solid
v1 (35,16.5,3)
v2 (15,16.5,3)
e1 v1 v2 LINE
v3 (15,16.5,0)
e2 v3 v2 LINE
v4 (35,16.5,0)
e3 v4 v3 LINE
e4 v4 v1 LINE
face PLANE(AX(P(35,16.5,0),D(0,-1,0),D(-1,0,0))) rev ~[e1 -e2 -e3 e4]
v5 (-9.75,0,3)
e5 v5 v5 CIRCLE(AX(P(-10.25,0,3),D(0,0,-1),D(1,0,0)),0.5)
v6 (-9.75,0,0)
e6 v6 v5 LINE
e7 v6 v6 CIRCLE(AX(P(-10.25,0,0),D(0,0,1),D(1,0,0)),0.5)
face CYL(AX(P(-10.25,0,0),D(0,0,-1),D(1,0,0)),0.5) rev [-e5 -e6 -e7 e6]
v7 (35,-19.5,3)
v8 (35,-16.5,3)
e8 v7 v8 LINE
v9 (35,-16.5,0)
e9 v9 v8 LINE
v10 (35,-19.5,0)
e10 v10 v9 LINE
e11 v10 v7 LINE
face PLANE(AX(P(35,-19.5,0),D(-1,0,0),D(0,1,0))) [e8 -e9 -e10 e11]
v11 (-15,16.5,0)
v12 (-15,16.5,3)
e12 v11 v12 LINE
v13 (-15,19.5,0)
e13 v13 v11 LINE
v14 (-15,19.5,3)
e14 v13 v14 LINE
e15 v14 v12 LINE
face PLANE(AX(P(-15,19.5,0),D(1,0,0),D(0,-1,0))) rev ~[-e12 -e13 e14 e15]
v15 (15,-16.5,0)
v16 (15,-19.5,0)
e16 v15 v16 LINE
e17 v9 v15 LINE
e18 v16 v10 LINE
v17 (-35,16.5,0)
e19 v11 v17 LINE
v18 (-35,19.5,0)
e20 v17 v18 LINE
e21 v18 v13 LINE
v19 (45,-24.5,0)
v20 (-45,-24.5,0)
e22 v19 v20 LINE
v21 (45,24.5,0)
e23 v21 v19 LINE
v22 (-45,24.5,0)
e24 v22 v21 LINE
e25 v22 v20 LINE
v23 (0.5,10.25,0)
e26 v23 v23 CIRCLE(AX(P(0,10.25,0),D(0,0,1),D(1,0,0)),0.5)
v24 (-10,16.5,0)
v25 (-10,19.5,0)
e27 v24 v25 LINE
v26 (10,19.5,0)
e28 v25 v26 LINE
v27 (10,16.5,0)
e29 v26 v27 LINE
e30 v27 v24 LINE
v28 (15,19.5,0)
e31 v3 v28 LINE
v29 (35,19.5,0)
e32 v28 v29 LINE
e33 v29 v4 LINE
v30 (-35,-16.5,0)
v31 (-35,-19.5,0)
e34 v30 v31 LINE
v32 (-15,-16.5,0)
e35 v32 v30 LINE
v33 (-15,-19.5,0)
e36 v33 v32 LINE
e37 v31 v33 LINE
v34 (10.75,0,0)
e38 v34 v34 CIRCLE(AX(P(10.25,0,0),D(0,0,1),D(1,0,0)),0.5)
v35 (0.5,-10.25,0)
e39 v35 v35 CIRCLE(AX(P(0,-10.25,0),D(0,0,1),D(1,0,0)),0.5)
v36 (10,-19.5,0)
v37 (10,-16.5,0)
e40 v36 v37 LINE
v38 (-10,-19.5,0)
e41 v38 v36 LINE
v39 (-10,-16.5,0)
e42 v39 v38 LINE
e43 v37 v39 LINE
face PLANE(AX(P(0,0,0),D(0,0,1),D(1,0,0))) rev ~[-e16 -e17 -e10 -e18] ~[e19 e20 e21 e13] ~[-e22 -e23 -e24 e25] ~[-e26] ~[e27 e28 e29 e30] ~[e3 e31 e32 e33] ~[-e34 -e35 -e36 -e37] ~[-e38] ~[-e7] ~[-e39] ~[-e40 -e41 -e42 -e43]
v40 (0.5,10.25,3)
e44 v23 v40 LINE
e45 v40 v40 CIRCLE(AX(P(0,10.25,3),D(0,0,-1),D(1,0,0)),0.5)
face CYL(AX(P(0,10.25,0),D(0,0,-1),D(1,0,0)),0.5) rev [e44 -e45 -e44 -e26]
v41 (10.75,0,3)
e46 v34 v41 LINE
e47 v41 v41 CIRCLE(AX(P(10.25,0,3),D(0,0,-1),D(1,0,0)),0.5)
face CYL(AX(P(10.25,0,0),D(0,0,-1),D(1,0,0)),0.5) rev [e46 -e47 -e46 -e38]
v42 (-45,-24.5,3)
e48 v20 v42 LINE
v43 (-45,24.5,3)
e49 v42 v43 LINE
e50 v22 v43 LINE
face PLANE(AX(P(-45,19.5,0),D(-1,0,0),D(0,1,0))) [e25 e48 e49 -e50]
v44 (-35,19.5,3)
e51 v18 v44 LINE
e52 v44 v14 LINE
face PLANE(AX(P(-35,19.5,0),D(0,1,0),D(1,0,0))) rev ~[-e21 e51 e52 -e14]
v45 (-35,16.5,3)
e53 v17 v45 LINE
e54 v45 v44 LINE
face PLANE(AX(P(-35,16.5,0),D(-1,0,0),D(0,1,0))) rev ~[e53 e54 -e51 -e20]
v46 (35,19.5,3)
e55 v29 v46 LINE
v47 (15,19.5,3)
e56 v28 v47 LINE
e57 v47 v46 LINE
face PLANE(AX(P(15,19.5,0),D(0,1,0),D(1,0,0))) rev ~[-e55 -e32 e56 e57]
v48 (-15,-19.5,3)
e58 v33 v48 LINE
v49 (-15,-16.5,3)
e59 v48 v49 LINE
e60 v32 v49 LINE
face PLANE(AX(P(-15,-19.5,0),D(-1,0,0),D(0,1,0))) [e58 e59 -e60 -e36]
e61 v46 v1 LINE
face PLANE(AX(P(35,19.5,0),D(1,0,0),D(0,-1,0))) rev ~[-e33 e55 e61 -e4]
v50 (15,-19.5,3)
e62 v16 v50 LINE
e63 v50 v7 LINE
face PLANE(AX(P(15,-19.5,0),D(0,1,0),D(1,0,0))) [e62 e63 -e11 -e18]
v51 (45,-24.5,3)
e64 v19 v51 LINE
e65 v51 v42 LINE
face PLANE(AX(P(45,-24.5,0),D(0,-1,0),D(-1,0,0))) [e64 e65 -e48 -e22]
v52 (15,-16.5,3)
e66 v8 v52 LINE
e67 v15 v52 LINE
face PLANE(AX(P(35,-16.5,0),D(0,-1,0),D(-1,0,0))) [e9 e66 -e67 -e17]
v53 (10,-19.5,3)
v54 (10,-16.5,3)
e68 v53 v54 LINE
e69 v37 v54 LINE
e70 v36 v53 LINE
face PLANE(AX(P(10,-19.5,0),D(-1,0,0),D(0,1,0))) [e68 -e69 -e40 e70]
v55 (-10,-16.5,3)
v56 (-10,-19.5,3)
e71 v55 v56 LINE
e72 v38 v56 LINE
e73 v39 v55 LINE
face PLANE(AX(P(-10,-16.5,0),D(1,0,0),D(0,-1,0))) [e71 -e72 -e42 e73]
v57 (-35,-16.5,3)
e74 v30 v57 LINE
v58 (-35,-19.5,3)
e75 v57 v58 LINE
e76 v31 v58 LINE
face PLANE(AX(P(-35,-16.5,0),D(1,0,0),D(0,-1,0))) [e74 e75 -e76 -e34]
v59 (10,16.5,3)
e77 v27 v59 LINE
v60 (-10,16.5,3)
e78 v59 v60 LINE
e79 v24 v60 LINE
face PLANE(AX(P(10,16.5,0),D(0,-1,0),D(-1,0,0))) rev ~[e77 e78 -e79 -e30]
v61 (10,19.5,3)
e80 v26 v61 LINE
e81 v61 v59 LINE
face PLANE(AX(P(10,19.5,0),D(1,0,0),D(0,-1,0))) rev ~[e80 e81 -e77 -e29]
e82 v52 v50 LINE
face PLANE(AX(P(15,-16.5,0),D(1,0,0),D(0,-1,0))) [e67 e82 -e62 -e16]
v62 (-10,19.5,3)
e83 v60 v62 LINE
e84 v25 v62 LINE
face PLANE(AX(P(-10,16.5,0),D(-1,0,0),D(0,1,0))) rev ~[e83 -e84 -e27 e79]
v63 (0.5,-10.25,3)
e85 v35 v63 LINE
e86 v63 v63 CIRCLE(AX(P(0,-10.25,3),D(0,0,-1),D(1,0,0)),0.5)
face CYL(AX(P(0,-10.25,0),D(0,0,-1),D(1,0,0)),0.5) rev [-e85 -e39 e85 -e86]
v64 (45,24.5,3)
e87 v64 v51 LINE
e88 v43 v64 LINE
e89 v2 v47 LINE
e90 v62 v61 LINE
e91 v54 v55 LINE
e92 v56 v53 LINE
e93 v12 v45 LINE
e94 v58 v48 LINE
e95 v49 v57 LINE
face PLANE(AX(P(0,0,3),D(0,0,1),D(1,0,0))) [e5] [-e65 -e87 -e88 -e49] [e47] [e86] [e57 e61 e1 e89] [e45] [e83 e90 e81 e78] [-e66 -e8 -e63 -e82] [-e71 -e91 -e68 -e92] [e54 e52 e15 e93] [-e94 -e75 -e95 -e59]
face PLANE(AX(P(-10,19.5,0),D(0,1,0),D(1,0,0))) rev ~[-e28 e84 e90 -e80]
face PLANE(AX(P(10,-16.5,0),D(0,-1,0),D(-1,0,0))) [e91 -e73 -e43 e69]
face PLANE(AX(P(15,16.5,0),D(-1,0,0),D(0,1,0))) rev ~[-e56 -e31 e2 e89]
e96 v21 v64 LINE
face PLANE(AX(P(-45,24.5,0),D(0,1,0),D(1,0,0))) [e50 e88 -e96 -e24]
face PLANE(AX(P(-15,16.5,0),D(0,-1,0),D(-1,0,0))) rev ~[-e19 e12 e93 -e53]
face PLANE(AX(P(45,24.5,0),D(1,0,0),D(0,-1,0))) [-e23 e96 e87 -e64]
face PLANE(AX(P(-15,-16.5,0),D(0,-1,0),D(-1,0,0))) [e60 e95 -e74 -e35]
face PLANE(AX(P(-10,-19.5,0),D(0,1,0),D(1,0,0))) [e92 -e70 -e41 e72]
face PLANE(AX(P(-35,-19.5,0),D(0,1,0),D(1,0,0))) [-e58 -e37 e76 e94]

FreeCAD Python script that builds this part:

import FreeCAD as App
import Part
import Sketcher
Q = App.Units.Quantity


def add_polygon(sketch, points):
    """Adds a closed chain of lines whose ends are joined by coincident constraints."""
    first, n = sketch.GeometryCount, len(points)
    for a, b in zip(points, points[1:] + points[:1]):
        sketch.addGeometry(Part.LineSegment(App.Vector(*a, 0), App.Vector(*b, 0)), False)
    for i in range(n):
        sketch.addConstraint(Sketcher.Constraint("Coincident", first + i, 2, first + (i + 1) % n, 1))

doc = App.newDocument("Part")
params = doc.addObject("Spreadsheet::Sheet", "Params")
for row, (alias, value) in enumerate([
    ("sketch1_diameter", "1 mm"),
    ("sketch1_width", "20 mm"),
    ("sketch1_height", "49 mm"),
    ("sketch1_height2", "3 mm"),
    ("pad1_length", "3 mm"),
], start=1):
    params.set(f"A{row}", alias)
    params.set(f"B{row}", "=" + value)
    params.setAlias(f"B{row}", alias)

body = doc.addObject("PartDesign::Body", "Body")

sketch1 = body.newObject("Sketcher::SketchObject", "Sketch")
sketch1.AttachmentSupport = (doc.getObject("XY_Plane"), [""])
sketch1.MapMode = "FlatFace"
add_polygon(sketch1, [(45, 24.5), (-45, 24.5), (-45, -24.5), (45, -24.5)])
add_polygon(sketch1, [(-15, -19.5), (-35, -19.5), (-35, -16.5), (-15, -16.5)])
add_polygon(sketch1, [(10, -19.5), (-10, -19.5), (-10, -16.5), (10, -16.5)])
add_polygon(sketch1, [(35, -19.5), (15, -19.5), (15, -16.5), (35, -16.5)])
sketch1.addGeometry(Part.Circle(App.Vector(0, 10.25, 0), App.Vector(0, 0, 1), 0.5), False)
sketch1.addGeometry(Part.Circle(App.Vector(-10.25, 0, 0), App.Vector(0, 0, 1), 0.5), False)
sketch1.addGeometry(Part.Circle(App.Vector(0, -10.25, 0), App.Vector(0, 0, 1), 0.5), False)
sketch1.addGeometry(Part.Circle(App.Vector(10.25, 0, 0), App.Vector(0, 0, 1), 0.5), False)
add_polygon(sketch1, [(-35, 16.5), (-35, 19.5), (-15, 19.5), (-15, 16.5)])
add_polygon(sketch1, [(-10, 16.5), (-10, 19.5), (10, 19.5), (10, 16.5)])
add_polygon(sketch1, [(15, 16.5), (15, 19.5), (35, 19.5), (35, 16.5)])
sketch1.addConstraint([
    Sketcher.Constraint("Horizontal", 0),
    Sketcher.Constraint("Vertical", 1),
    Sketcher.Constraint("Horizontal", 2),
    Sketcher.Constraint("Vertical", 3),
    Sketcher.Constraint("Horizontal", 4),
    Sketcher.Constraint("Vertical", 5),
    Sketcher.Constraint("Horizontal", 6),
    Sketcher.Constraint("Vertical", 7),
    Sketcher.Constraint("Horizontal", 8),
    Sketcher.Constraint("Vertical", 9),
    Sketcher.Constraint("Horizontal", 10),
    Sketcher.Constraint("Vertical", 11),
    Sketcher.Constraint("Horizontal", 12),
    Sketcher.Constraint("Vertical", 13),
    Sketcher.Constraint("Horizontal", 14),
    Sketcher.Constraint("Vertical", 15),
    Sketcher.Constraint("Vertical", 20),
    Sketcher.Constraint("Horizontal", 21),
    Sketcher.Constraint("Vertical", 22),
    Sketcher.Constraint("Horizontal", 23),
    Sketcher.Constraint("Vertical", 24),
    Sketcher.Constraint("Horizontal", 25),
    Sketcher.Constraint("Vertical", 26),
    Sketcher.Constraint("Horizontal", 27),
    Sketcher.Constraint("Vertical", 28),
    Sketcher.Constraint("Horizontal", 29),
    Sketcher.Constraint("Vertical", 30),
    Sketcher.Constraint("Horizontal", 31),
    Sketcher.Constraint("Equal", 16, 17),
    Sketcher.Constraint("Equal", 17, 18),
    Sketcher.Constraint("Equal", 18, 19),
    Sketcher.Constraint("Symmetric", 16, 3, 18, 3, -1, 1),
    Sketcher.Constraint("Symmetric", 17, 3, 19, 3, -1, 1),
    Sketcher.Constraint("Symmetric", 0, 2, 2, 2, -1, 1),
    Sketcher.Constraint("Symmetric", 15, 2, 20, 2, -1, 1),
    Sketcher.Constraint("Symmetric", 13, 2, 22, 2, -1, 1),
    Sketcher.Constraint("Symmetric", 11, 2, 24, 2, -1, 1),
    Sketcher.Constraint("Symmetric", 9, 2, 26, 2, -1, 1),
    Sketcher.Constraint("Symmetric", 7, 2, 28, 2, -1, 1),
    Sketcher.Constraint("Symmetric", 5, 2, 30, 2, -1, 1),
    Sketcher.Constraint("Symmetric", 7, 2, 12, 2, -2),
    Sketcher.Constraint("Symmetric", 5, 2, 14, 2, -2),
    Sketcher.Constraint("PointOnObject", 16, 3, -2),
    Sketcher.Constraint("PointOnObject", 17, 3, -1),
    Sketcher.Constraint("Horizontal", 7, 2, 8, 2),
    Sketcher.Constraint("Horizontal", 6, 2, 9, 2),
    Sketcher.Constraint("Vertical", 9, 2, 24, 2),
    Sketcher.Constraint("Equal", 6, 8),
    Sketcher.Constraint("Diameter", 16, Q("1 mm")),
    Sketcher.Constraint("DistanceX", 4, 2, 4, 1, Q("20 mm")),
    Sketcher.Constraint("DistanceY", 1, 2, 1, 1, Q("49 mm")),
    Sketcher.Constraint("DistanceX", 1, 2, 4, 2, Q("10 mm")),
    Sketcher.Constraint("DistanceY", 1, 2, 4, 2, Q("5 mm")),
    Sketcher.Constraint("DistanceX", 7, 2, 8, 2, Q("5 mm")),
    Sketcher.Constraint("DistanceY", 18, 3, 16, 3, Q("20.5 mm")),
    Sketcher.Constraint("DistanceX", 17, 3, 19, 3, Q("20.5 mm")),
    Sketcher.Constraint("DistanceY", 5, 1, 5, 2, Q("3 mm")),
])
sketch1.setExpression("Constraints[76]", "Params.sketch1_diameter")
sketch1.setExpression("Constraints[77]", "Params.sketch1_width")
sketch1.setExpression("Constraints[78]", "Params.sketch1_height")
sketch1.setExpression("Constraints[84]", "Params.sketch1_height2")
pad1 = body.newObject("PartDesign::Pad", "Pad")
pad1.Profile = sketch1
pad1.setExpression("Length", "Params.pad1_length")

doc.recompute()
